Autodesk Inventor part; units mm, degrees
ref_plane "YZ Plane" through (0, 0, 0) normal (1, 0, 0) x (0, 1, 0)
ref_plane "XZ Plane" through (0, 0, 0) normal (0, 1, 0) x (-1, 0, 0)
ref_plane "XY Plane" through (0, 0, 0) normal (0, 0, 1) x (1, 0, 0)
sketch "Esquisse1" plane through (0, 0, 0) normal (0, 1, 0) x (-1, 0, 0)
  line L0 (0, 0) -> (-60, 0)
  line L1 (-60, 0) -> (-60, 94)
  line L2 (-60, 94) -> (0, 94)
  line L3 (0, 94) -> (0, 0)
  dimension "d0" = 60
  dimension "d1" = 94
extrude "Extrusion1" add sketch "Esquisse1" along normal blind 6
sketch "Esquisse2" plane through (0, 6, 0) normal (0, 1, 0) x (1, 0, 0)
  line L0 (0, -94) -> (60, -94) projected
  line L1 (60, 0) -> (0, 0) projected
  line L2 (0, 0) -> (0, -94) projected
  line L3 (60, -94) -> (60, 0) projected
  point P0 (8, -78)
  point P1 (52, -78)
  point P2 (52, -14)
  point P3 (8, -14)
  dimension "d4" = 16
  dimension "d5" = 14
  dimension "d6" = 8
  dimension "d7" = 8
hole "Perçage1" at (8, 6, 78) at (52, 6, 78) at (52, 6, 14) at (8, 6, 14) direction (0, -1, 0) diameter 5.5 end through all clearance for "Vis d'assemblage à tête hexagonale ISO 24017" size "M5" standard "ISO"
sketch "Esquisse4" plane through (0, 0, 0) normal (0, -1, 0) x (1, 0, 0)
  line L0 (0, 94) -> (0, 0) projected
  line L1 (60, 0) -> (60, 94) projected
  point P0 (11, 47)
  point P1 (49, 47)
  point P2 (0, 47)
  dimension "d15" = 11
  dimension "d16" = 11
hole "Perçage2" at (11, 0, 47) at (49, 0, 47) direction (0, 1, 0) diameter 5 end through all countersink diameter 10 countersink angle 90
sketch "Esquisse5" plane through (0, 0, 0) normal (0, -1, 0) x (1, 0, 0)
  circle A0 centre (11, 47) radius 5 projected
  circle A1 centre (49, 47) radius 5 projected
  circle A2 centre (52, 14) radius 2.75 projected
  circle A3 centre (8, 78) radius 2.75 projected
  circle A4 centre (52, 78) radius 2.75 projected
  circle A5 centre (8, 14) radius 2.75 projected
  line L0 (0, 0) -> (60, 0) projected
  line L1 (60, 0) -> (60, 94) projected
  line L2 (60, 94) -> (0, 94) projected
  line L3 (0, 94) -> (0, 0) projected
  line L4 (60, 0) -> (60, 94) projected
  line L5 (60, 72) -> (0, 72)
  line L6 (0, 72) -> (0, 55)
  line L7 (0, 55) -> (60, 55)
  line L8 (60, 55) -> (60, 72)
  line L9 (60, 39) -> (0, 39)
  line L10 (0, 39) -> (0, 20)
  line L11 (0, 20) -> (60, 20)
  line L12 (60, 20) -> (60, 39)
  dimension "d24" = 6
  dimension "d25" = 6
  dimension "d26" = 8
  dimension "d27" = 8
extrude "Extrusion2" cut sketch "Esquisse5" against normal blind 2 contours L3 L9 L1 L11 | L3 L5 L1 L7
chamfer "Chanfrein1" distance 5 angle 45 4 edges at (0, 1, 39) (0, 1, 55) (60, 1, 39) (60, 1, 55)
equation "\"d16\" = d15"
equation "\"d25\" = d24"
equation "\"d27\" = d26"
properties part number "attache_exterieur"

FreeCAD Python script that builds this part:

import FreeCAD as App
import Part
import Sketcher

V = App.Vector
Q = App.Units.Quantity


def edges_at(feature, points):
    """Names of the edges that pass closest to the given points."""
    edges = feature.Shape.Edges
    near = lambda p: min(range(len(edges)), key=lambda i: edges[i].distToShape(Part.Vertex(*p))[0])
    return sorted({f"Edge{near(p) + 1}" for p in points})

doc = App.newDocument("Part")
body = doc.addObject("PartDesign::Body", "Body")

sketch1 = body.newObject("Sketcher::SketchObject", "Sketch")
sketch1.AttachmentSupport = (doc.getObject("XZ_Plane"), [""])
sketch1.MapMode = "FlatFace"
sketch1.addGeometry([
    Part.LineSegment(V(60, 0, 0), V(0, 0, 0)),
    Part.LineSegment(V(0, 0, 0), V(0, 94, 0)),
    Part.LineSegment(V(0, 94, 0), V(60, 94, 0)),
    Part.LineSegment(V(60, 94, 0), V(60, 0, 0)),
], False)
sketch1.addConstraint([
    Sketcher.Constraint("Coincident", 0, 2, 1, 1),
    Sketcher.Constraint("Coincident", 1, 2, 2, 1),
    Sketcher.Constraint("Coincident", 2, 2, 3, 1),
    Sketcher.Constraint("Coincident", 3, 2, 0, 1),
    Sketcher.Constraint("Horizontal", 0),
    Sketcher.Constraint("Vertical", 1),
    Sketcher.Constraint("Horizontal", 2),
    Sketcher.Constraint("Vertical", 3),
    Sketcher.Constraint("Coincident", 0, 2, -1, 1),
    Sketcher.Constraint("DistanceX", 0, 2, 0, 1, Q("60 mm")),
    Sketcher.Constraint("DistanceY", 1, 1, 1, 2, Q("94 mm")),
])
pad1 = body.newObject("PartDesign::Pad", "Pad")
pad1.Profile = sketch1
pad1.Length = 6
pad1.Reversed = True

sketch2 = body.newObject("Sketcher::SketchObject", "Sketch001")
sketch2.AttachmentSupport = (doc.getObject("XZ_Plane"), [""])
sketch2.MapMode = "FlatFace"
sketch2.AttachmentOffset = App.Placement(V(0, 0, -6), App.Rotation())
sketch2.addGeometry([
    Part.Circle(V(8, 78, 0), V(0, 0, 1), 2.8),
    Part.Circle(V(52, 78, 0), V(0, 0, 1), 2.8),
    Part.Circle(V(52, 14, 0), V(0, 0, 1), 2.8),
    Part.Circle(V(8, 14, 0), V(0, 0, 1), 2.8),
], False)
sketch2.addConstraint([
    Sketcher.Constraint("Equal", 0, 1),
    Sketcher.Constraint("Equal", 1, 2),
    Sketcher.Constraint("Equal", 2, 3),
    Sketcher.Constraint("Horizontal", 0, 3, 1, 3),
    Sketcher.Constraint("Horizontal", 2, 3, 3, 3),
    Sketcher.Constraint("Vertical", 1, 3, 2, 3),
    Sketcher.Constraint("Vertical", 0, 3, 3, 3),
    Sketcher.Constraint("Diameter", 0, Q("5.5 mm")),
    Sketcher.Constraint("DistanceX", -1, 1, 0, 3, Q("8 mm")),
    Sketcher.Constraint("DistanceY", -1, 1, 0, 3, Q("78 mm")),
    Sketcher.Constraint("DistanceX", -1, 1, 1, 3, Q("52 mm")),
    Sketcher.Constraint("DistanceY", -1, 1, 2, 3, Q("14 mm")),
])
doc.recompute()
hole = body.newObject("PartDesign::Hole", "Hole")
hole.Profile = sketch2
hole.ThreadType = "None"
hole.Diameter = 5.5
hole.DepthType = "ThroughAll"
hole.Reversed = True

sketch3 = body.newObject("Sketcher::SketchObject", "Sketch002")
sketch3.AttachmentSupport = (doc.getObject("XZ_Plane"), [""])
sketch3.MapMode = "FlatFace"
sketch3.addGeometry([
    Part.Circle(V(11, 47, 0), V(0, 0, 1), 2.5),
    Part.Circle(V(49, 47, 0), V(0, 0, 1), 2.5),
], False)
sketch3.addConstraint([
    Sketcher.Constraint("Equal", 0, 1),
    Sketcher.Constraint("Horizontal", 0, 3, 1, 3),
    Sketcher.Constraint("Diameter", 0, Q("5 mm")),
    Sketcher.Constraint("DistanceX", -1, 1, 0, 3, Q("11 mm")),
    Sketcher.Constraint("DistanceY", -1, 1, 0, 3, Q("47 mm")),
    Sketcher.Constraint("DistanceX", -1, 1, 1, 3, Q("49 mm")),
])
doc.recompute()
hole2 = body.newObject("PartDesign::Hole", "Hole001")
hole2.Profile = sketch3
hole2.ThreadType = "None"
hole2.Diameter = 5
hole2.DepthType = "ThroughAll"
hole2.HoleCutType = "Countersink"
hole2.HoleCutDiameter = 10
hole2.HoleCutCountersinkAngle = 90

sketch4 = body.newObject("Sketcher::SketchObject", "Sketch003")
sketch4.AttachmentSupport = (doc.getObject("XZ_Plane"), [""])
sketch4.MapMode = "FlatFace"
sketch4.addGeometry([
    Part.LineSegment(V(0, 39, 0), V(0, 20, 0)),
    Part.LineSegment(V(0, 20, 0), V(60, 20, 0)),
    Part.LineSegment(V(60, 20, 0), V(60, 39, 0)),
    Part.LineSegment(V(60, 39, 0), V(0, 39, 0)),
    Part.LineSegment(V(0, 72, 0), V(0, 55, 0)),
    Part.LineSegment(V(0, 55, 0), V(60, 55, 0)),
    Part.LineSegment(V(60, 55, 0), V(60, 72, 0)),
    Part.LineSegment(V(60, 72, 0), V(0, 72, 0)),
], False)
sketch4.addConstraint([
    Sketcher.Constraint("Coincident", 0, 2, 1, 1),
    Sketcher.Constraint("Coincident", 1, 2, 2, 1),
    Sketcher.Constraint("Coincident", 2, 2, 3, 1),
    Sketcher.Constraint("Coincident", 3, 2, 0, 1),
    Sketcher.Constraint("Coincident", 4, 2, 5, 1),
    Sketcher.Constraint("Coincident", 5, 2, 6, 1),
    Sketcher.Constraint("Coincident", 6, 2, 7, 1),
    Sketcher.Constraint("Coincident", 7, 2, 4, 1),
    Sketcher.Constraint("Vertical", 0),
    Sketcher.Constraint("Horizontal", 1),
    Sketcher.Constraint("Vertical", 2),
    Sketcher.Constraint("Horizontal", 3),
    Sketcher.Constraint("Vertical", 4),
    Sketcher.Constraint("Horizontal", 5),
    Sketcher.Constraint("Vertical", 6),
    Sketcher.Constraint("Horizontal", 7),
    Sketcher.Constraint("PointOnObject", 0, 2, -2),
    Sketcher.Constraint("PointOnObject", 4, 2, -2),
    Sketcher.Constraint("Vertical", 2, 2, 5, 2),
    Sketcher.Constraint("DistanceX", 1, 1, 1, 2, Q("60 mm")),
    Sketcher.Constraint("DistanceY", 0, 2, 0, 1, Q("19 mm")),
    Sketcher.Constraint("DistanceY", 4, 2, 4, 1, Q("17 mm")),
    Sketcher.Constraint("DistanceY", -1, 1, 0, 2, Q("20 mm")),
    Sketcher.Constraint("DistanceY", -1, 1, 4, 2, Q("55 mm")),
])
pocket1 = body.newObject("PartDesign::Pocket", "Pocket")
pocket1.Profile = sketch4
pocket1.Length = 2
doc.recompute()

chamfer = body.newObject("PartDesign::Chamfer", "Chamfer")
chamfer.Base = (pocket1, edges_at(pocket1, [
    (0, 1, 39),
    (0, 1, 55),
    (60, 1, 39),
    (60, 1, 55),
]))
chamfer.Size = 5

doc.recompute()
